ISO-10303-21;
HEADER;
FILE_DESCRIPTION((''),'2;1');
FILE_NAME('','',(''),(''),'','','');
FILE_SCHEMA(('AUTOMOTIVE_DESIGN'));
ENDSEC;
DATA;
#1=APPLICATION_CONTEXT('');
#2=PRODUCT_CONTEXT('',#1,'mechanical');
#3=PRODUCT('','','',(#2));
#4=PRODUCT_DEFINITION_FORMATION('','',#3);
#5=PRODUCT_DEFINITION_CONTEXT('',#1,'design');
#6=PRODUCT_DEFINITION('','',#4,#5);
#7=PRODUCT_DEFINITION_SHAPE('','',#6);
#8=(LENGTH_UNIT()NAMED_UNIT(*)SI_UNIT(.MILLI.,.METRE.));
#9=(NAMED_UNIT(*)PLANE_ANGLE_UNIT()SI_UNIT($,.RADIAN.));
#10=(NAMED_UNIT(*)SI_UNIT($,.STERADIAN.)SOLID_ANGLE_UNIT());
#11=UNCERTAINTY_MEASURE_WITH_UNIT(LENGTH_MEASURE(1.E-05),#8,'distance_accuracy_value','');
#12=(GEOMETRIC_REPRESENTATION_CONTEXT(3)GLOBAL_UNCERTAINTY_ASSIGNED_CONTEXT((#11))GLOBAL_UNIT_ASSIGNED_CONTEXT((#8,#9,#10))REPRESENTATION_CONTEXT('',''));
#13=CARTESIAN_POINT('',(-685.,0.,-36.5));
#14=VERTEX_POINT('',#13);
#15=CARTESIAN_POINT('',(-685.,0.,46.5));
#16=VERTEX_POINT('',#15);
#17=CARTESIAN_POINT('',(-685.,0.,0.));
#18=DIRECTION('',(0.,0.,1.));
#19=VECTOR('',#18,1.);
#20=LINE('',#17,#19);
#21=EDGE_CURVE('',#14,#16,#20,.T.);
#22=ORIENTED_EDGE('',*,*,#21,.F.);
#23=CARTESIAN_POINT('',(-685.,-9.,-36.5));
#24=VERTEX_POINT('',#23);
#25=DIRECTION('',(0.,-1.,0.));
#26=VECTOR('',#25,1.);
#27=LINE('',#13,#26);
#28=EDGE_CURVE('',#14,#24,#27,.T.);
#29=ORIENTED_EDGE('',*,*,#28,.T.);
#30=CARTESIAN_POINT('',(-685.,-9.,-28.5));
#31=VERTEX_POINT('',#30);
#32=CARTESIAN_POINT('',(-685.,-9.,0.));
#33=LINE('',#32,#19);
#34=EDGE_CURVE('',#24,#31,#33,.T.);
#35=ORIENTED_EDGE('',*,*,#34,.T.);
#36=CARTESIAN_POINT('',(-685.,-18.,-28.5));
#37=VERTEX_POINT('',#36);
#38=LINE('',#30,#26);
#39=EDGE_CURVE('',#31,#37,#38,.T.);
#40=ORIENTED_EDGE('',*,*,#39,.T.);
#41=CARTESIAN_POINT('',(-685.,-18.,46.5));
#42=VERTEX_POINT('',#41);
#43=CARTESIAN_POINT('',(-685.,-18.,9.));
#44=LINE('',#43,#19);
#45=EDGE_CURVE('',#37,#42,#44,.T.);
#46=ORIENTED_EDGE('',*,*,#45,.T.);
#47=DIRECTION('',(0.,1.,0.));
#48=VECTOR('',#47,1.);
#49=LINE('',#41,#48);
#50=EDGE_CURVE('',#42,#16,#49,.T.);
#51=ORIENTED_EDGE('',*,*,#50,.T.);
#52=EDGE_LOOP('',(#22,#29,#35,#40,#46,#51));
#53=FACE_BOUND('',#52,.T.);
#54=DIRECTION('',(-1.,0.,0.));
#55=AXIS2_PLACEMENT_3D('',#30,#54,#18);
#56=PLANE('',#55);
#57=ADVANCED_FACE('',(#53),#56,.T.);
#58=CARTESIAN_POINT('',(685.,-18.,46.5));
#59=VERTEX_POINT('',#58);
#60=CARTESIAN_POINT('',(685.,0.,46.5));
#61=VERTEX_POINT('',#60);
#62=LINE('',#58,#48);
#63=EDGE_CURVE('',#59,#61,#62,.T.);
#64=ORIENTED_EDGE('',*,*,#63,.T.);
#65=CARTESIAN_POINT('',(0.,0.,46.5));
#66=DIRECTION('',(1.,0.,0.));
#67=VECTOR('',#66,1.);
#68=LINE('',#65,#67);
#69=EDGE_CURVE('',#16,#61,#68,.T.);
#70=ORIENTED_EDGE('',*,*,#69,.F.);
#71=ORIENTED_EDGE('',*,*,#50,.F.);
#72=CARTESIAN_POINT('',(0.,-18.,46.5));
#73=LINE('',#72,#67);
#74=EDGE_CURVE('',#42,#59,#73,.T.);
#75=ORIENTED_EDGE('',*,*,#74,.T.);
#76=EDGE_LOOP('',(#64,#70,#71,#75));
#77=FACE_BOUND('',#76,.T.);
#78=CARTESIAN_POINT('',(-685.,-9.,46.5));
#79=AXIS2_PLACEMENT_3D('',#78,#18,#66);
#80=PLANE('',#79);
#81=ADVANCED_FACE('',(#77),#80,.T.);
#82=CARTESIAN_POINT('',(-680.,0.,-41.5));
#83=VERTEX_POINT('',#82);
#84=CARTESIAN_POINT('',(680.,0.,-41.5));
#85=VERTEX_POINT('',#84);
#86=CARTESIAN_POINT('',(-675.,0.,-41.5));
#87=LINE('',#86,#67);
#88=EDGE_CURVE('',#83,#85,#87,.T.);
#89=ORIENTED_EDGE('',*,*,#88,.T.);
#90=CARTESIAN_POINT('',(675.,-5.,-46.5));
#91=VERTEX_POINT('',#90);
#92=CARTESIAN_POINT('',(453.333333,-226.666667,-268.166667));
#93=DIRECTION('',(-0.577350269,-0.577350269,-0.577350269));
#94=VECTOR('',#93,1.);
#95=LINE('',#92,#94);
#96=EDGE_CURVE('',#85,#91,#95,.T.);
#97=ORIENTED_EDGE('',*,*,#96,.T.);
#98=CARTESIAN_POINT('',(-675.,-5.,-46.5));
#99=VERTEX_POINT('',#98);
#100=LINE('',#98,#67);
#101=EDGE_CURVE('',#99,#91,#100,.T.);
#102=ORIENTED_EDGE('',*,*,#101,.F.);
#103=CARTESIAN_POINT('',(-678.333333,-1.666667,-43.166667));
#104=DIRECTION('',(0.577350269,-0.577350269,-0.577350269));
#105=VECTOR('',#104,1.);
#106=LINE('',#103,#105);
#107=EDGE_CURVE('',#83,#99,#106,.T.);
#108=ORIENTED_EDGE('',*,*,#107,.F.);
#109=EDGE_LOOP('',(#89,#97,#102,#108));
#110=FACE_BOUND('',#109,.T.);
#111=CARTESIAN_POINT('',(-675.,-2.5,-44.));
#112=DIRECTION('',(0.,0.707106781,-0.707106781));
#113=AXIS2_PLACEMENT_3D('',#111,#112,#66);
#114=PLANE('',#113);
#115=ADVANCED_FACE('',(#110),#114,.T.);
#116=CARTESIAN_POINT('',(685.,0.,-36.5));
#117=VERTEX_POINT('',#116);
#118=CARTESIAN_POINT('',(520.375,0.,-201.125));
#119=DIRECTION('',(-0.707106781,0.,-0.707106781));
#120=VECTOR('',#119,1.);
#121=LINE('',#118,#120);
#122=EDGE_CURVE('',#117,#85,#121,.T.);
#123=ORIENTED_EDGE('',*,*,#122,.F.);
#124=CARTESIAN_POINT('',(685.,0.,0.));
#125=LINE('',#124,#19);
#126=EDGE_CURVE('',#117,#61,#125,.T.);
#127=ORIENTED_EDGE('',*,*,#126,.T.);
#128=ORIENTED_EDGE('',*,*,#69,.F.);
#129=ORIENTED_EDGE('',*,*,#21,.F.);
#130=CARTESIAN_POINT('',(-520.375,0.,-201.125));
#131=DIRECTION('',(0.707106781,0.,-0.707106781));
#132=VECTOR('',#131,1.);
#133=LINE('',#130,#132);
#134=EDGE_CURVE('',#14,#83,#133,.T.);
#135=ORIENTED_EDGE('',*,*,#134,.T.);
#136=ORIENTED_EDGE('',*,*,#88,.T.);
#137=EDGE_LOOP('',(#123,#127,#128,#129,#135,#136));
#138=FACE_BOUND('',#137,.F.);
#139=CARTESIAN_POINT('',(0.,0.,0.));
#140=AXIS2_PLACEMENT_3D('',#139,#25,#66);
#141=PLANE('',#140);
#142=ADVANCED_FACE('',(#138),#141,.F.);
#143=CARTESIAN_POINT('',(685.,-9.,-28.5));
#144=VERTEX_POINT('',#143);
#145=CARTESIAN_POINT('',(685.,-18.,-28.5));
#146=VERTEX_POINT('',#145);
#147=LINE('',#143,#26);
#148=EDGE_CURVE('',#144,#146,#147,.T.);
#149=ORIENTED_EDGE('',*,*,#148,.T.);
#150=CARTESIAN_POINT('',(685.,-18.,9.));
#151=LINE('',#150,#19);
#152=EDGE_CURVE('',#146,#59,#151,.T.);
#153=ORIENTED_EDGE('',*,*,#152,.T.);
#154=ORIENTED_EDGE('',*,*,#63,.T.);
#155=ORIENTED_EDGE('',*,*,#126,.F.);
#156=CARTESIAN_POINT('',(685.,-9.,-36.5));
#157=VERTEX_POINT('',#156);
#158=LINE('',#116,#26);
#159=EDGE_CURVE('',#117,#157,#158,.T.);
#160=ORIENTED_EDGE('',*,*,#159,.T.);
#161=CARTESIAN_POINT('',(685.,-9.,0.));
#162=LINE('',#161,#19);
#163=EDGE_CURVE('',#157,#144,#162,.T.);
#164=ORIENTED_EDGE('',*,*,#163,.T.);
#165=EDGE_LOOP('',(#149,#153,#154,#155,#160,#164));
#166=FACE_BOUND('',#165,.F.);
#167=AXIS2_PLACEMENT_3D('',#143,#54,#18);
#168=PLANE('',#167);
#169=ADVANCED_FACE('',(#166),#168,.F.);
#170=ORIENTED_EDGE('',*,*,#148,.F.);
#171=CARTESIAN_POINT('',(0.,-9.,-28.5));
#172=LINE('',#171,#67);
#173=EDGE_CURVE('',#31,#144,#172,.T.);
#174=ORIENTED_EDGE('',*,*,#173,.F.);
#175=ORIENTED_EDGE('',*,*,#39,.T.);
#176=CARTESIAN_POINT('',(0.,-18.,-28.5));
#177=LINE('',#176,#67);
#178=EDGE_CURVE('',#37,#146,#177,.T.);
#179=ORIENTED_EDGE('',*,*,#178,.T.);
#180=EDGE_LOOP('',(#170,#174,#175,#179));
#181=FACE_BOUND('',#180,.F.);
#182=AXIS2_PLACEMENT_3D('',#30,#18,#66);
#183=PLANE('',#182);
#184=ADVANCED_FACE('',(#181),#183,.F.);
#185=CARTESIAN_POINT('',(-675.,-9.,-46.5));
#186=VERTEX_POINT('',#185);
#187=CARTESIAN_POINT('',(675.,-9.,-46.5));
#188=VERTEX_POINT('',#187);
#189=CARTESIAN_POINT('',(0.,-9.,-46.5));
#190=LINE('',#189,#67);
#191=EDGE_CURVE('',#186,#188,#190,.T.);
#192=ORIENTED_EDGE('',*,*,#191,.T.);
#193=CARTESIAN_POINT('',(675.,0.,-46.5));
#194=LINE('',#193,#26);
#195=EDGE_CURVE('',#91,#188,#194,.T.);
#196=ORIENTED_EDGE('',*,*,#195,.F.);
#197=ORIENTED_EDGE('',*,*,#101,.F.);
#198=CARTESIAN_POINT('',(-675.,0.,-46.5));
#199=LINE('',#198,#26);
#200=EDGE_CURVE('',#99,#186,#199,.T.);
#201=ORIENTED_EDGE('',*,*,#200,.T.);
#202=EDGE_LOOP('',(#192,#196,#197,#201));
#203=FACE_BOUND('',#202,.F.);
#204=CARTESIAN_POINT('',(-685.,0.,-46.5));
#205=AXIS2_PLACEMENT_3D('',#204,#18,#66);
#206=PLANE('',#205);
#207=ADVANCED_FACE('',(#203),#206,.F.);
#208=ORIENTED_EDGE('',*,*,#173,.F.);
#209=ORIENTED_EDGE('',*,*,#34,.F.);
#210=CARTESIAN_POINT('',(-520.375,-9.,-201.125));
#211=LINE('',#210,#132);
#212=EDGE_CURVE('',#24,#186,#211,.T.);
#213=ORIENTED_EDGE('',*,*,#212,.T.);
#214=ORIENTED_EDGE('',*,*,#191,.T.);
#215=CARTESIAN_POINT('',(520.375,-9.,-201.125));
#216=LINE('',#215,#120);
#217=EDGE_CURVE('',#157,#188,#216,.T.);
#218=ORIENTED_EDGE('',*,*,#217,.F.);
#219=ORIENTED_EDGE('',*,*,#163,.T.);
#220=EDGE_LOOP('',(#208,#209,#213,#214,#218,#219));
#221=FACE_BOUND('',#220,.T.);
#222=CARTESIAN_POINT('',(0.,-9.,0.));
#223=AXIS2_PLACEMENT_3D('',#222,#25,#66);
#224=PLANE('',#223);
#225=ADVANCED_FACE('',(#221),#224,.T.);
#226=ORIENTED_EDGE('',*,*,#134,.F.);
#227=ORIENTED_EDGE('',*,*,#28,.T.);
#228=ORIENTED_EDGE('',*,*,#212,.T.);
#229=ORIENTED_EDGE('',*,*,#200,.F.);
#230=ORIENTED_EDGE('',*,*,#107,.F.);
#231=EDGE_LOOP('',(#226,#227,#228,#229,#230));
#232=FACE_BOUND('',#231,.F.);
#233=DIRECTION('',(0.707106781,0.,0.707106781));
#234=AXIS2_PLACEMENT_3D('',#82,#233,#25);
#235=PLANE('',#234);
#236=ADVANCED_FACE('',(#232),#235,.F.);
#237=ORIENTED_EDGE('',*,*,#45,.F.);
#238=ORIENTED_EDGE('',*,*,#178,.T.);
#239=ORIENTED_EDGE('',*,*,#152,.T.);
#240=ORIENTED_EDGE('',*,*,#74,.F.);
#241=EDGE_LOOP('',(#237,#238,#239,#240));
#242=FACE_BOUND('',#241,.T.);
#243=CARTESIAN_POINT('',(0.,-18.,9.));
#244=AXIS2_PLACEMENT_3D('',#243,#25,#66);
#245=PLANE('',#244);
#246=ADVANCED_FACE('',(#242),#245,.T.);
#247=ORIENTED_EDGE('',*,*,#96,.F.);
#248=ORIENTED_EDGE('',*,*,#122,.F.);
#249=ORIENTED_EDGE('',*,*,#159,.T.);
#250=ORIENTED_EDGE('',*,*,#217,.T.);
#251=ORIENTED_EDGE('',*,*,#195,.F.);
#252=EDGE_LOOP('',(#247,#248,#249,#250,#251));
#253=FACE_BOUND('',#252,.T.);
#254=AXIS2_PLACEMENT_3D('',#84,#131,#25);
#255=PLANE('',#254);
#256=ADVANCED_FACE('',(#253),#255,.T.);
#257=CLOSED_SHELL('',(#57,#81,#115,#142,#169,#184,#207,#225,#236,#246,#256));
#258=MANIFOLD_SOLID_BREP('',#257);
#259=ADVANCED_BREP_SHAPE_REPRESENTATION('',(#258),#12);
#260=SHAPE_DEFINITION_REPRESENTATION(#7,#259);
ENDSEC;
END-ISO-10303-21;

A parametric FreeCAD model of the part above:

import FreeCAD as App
import Part
import Sketcher

V = App.Vector
Q = App.Units.Quantity


def edges_at(feature, points):
    """Names of the edges that pass closest to the given points."""
    edges = feature.Shape.Edges
    near = lambda p: min(range(len(edges)), key=lambda i: edges[i].distToShape(Part.Vertex(*p))[0])
    return sorted({f"Edge{near(p) + 1}" for p in points})

doc = App.newDocument("Part")
params = doc.addObject("Spreadsheet::Sheet", "Params")
for row, (alias, value) in enumerate([
    ("sketch1_width", "1370 mm"),
    ("sketch1_height", "93 mm"),
    ("pad1_length", "9 mm"),
    ("sketch2_width", "1370 mm"),
    ("sketch2_height", "75 mm"),
    ("pad2_length", "9 mm"),
    ("chamfer_size", "10 mm"),
    ("chamfer2_size", "5 mm"),
], start=1):
    params.set(f"A{row}", alias)
    params.set(f"B{row}", "=" + value)
    params.setAlias(f"B{row}", alias)

body = doc.addObject("PartDesign::Body", "Body")

# Sketch on XZ plane
sketch1 = body.newObject("Sketcher::SketchObject", "Sketch")
sketch1.AttachmentSupport = (doc.getObject("XZ_Plane"), [""])
sketch1.MapMode = "FlatFace"
sketch1.addGeometry([
    Part.LineSegment(V(-685, 46, 0), V(-685, -46, 0)),
    Part.LineSegment(V(-685, -46, 0), V(685, -46, 0)),
    Part.LineSegment(V(685, -46, 0), V(685, 46, 0)),
    Part.LineSegment(V(685, 46, 0), V(-685, 46, 0)),
], False)
sketch1.addConstraint([
    Sketcher.Constraint("Coincident", 0, 2, 1, 1),
    Sketcher.Constraint("Coincident", 1, 2, 2, 1),
    Sketcher.Constraint("Coincident", 2, 2, 3, 1),
    Sketcher.Constraint("Coincident", 3, 2, 0, 1),
    Sketcher.Constraint("Vertical", 0),
    Sketcher.Constraint("Horizontal", 1),
    Sketcher.Constraint("Vertical", 2),
    Sketcher.Constraint("Horizontal", 3),
    Sketcher.Constraint("Symmetric", 0, 2, 2, 2, -1, 1),
    Sketcher.Constraint("DistanceX", 1, 1, 1, 2, Q("1370 mm")),
    Sketcher.Constraint("DistanceY", 0, 2, 0, 1, Q("93 mm")),
])
sketch1.setExpression("Constraints[9]", "Params.sketch1_width")
sketch1.setExpression("Constraints[10]", "Params.sketch1_height")
pad1 = body.newObject("PartDesign::Pad", "Pad")
pad1.Profile = sketch1
pad1.setExpression("Length", "Params.pad1_length")

# Sketch on XZ plane
sketch2 = body.newObject("Sketcher::SketchObject", "Sketch001")
sketch2.AttachmentSupport = (doc.getObject("XZ_Plane"), [""])
sketch2.MapMode = "FlatFace"
sketch2.AttachmentOffset = App.Placement(V(0, 0, 9), App.Rotation())
sketch2.addGeometry([
    Part.LineSegment(V(-685, 46, 0), V(-685, -28, 0)),
    Part.LineSegment(V(-685, -28, 0), V(685, -28, 0)),
    Part.LineSegment(V(685, -28, 0), V(685, 46, 0)),
    Part.LineSegment(V(685, 46, 0), V(-685, 46, 0)),
], False)
sketch2.addConstraint([
    Sketcher.Constraint("Coincident", 0, 2, 1, 1),
    Sketcher.Constraint("Coincident", 1, 2, 2, 1),
    Sketcher.Constraint("Coincident", 2, 2, 3, 1),
    Sketcher.Constraint("Coincident", 3, 2, 0, 1),
    Sketcher.Constraint("Vertical", 0),
    Sketcher.Constraint("Horizontal", 1),
    Sketcher.Constraint("Vertical", 2),
    Sketcher.Constraint("Horizontal", 3),
    Sketcher.Constraint("DistanceX", 1, 1, 1, 2, Q("1370 mm")),
    Sketcher.Constraint("DistanceY", 0, 2, 0, 1, Q("75 mm")),
    Sketcher.Constraint("DistanceX", 0, 2, -1, 1, Q("685 mm")),
    Sketcher.Constraint("DistanceY", 0, 2, -1, 1, Q("28.5 mm")),
])
sketch2.setExpression("Constraints[8]", "Params.sketch2_width")
sketch2.setExpression("Constraints[9]", "Params.sketch2_height")
pad2 = body.newObject("PartDesign::Pad", "Pad001")
pad2.Profile = sketch2
pad2.setExpression("Length", "Params.pad2_length")
doc.recompute()

chamfer = body.newObject("PartDesign::Chamfer", "Chamfer")
chamfer.Base = (pad2, edges_at(pad2, [(685, -4.5, -46.5), (-685, -4.5, -46.5)]))
chamfer.setExpression("Size", "Params.chamfer_size")
doc.recompute()

chamfer2 = body.newObject("PartDesign::Chamfer", "Chamfer001")
chamfer2.Base = (chamfer, edges_at(chamfer, [(0, 0, -46.5)]))
chamfer2.setExpression("Size", "Params.chamfer2_size")

doc.recompute()
